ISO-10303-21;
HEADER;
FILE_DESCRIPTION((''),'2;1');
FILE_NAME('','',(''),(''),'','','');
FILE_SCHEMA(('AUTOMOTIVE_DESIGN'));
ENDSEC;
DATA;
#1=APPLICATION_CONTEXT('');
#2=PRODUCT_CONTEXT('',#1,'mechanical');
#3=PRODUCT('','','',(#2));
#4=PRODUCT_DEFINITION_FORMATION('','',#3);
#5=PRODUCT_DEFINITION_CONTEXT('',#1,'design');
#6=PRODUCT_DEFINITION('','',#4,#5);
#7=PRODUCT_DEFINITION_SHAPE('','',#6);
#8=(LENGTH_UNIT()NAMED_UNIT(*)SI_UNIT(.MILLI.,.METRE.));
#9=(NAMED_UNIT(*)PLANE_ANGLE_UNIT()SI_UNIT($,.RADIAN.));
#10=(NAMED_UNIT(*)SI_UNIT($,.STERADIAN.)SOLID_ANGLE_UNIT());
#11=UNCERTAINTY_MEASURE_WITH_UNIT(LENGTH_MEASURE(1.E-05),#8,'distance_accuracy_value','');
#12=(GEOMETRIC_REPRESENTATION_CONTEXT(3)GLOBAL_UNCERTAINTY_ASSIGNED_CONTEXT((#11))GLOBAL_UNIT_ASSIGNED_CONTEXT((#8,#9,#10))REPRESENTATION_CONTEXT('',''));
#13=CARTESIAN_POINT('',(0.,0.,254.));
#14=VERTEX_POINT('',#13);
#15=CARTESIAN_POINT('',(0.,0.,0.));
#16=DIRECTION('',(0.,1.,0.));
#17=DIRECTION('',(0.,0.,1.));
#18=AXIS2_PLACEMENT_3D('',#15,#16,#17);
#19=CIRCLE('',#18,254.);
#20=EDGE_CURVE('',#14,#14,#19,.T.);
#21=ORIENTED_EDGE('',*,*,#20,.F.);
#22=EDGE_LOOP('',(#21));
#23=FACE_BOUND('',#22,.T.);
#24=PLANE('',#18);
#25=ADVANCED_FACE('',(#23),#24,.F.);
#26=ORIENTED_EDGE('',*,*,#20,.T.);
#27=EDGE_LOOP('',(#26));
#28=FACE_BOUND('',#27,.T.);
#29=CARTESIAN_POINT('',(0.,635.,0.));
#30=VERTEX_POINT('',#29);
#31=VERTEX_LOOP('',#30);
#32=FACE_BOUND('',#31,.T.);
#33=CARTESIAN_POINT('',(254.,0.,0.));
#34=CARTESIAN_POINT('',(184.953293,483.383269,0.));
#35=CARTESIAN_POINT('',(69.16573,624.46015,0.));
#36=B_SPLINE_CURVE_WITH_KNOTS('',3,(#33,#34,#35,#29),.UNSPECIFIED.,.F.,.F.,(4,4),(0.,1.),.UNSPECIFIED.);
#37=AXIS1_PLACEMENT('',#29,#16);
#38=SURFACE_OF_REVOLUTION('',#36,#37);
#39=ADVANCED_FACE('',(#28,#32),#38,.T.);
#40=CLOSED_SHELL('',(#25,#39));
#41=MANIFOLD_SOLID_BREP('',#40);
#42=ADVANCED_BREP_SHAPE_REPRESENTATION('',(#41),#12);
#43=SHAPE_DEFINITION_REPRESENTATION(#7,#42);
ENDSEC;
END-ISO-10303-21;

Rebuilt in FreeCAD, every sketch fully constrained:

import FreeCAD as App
import Part
import Sketcher

V = App.Vector

doc = App.newDocument("Part")
params = doc.addObject("Spreadsheet::Sheet", "Params")
for row, (alias, value) in enumerate([
    ("revolution_angle", "360 deg"),
], start=1):
    params.set(f"A{row}", alias)
    params.set(f"B{row}", "=" + value)
    params.setAlias(f"B{row}", alias)

body = doc.addObject("PartDesign::Body", "Body")

# Sketch on XY plane
sketch1 = doc.addObject("Sketcher::SketchObject", "Sketch")
body.addObject(sketch1)
sketch1.AttachmentSupport = (doc.XY_Plane, [""])
sketch1.MapMode = "FlatFace"
sketch1.addGeometry([
    Part.LineSegment(V(0, 635, 0), V(0, 0, 0)),
    Part.LineSegment(V(0, 0, 0), V(254, 0, 0)),
    Part.BSplineCurve([V(0, 635, 0), V(69.16573, 624.46015, 0), V(184.953293, 483.383269, 0), V(254, 0, 0)], [4, 4], [0, 1], False, 3, [1, 1, 1, 1], False),
], False)
sketch1.addConstraint([
    Sketcher.Constraint("Block", 2),
    Sketcher.Constraint("Coincident", 0, 2, 1, 1),
    Sketcher.Constraint("Coincident", 1, 2, 2, 2),
    Sketcher.Constraint("Coincident", 2, 1, 0, 1),
    Sketcher.Constraint("Vertical", 0),
    Sketcher.Constraint("Horizontal", 1),
])
revolution = doc.addObject("PartDesign::Revolution", "Revolution")
body.addObject(revolution)
revolution.Profile = sketch1
revolution.ReferenceAxis = (sketch1, ["V_Axis"])
revolution.setExpression("Angle", "Params.revolution_angle")

doc.recompute()
